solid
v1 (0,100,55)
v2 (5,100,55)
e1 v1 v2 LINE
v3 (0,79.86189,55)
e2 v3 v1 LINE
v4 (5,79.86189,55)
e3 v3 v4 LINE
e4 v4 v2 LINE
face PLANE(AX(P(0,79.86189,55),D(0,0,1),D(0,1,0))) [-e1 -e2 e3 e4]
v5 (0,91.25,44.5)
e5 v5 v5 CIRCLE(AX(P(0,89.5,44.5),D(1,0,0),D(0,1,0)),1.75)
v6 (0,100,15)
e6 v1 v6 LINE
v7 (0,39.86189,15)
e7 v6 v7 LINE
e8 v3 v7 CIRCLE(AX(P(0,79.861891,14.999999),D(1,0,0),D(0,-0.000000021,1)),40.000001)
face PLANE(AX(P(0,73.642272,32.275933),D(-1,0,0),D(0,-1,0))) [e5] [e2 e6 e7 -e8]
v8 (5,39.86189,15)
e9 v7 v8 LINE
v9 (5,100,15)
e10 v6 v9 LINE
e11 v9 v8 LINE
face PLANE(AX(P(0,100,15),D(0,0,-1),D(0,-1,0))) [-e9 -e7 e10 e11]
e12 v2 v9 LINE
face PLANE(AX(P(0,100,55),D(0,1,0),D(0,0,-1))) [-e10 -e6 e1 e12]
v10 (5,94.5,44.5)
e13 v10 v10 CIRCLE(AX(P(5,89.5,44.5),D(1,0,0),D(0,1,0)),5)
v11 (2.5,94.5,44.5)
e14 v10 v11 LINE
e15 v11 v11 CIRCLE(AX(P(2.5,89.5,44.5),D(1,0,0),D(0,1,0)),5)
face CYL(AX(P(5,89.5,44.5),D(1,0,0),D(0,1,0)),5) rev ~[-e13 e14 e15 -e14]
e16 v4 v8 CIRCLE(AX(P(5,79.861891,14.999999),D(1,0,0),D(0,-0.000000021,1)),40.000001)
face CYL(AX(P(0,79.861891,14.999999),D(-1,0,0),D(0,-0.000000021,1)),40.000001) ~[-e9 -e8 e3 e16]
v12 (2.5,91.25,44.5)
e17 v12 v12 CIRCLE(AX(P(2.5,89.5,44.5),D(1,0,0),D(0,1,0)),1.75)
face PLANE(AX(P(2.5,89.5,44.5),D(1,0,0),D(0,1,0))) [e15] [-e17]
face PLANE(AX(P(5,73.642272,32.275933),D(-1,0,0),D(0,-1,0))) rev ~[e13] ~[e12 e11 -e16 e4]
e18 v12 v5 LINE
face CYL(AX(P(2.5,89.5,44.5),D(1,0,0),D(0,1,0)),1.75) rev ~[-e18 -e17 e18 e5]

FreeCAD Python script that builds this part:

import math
import FreeCAD as App
import Part
import Sketcher
from FreeCAD import Vector
Q = App.Units.Quantity

doc = App.newDocument("Part")
body = doc.addObject("PartDesign::Body", "Body")

sketch1 = body.newObject("Sketcher::SketchObject", "Sketch")
sketch1.AttachmentSupport = (doc.getObject("YZ_Plane"), [""])
sketch1.MapMode = "FlatFace"
sketch1.addGeometry([
    Part.LineSegment(Vector(40, 15, 0), Vector(100, 15, 0)),
    Part.LineSegment(Vector(100, 15, 0), Vector(100, 55, 0)),
    Part.LineSegment(Vector(100, 55, 0), Vector(80, 55, 0)),
    Part.ArcOfCircle(Part.Circle(Vector(80, 15, 0), Vector(0, 0, 1), 40), math.radians(90), math.radians(180)),
], False)
sketch1.addConstraint([
    Sketcher.Constraint("Coincident", 0, 2, 1, 1),
    Sketcher.Constraint("Coincident", 1, 2, 2, 1),
    Sketcher.Constraint("Tangent", 2, 2, 3, 1),
    Sketcher.Constraint("Coincident", 3, 2, 0, 1),
    Sketcher.Constraint("Horizontal", 0),
    Sketcher.Constraint("Vertical", 1),
    Sketcher.Constraint("Horizontal", 2),
    Sketcher.Constraint("Horizontal", 3, 3, 0, 2),
    Sketcher.Constraint("Radius", 3, Q("40.000001 mm")),
    Sketcher.Constraint("DistanceY", -1, 1, 3, 3, Q("14.999999 mm")),
    Sketcher.Constraint("DistanceX", -1, 1, 0, 2, Q("100 mm")),
    Sketcher.Constraint("DistanceX", 0, 1, 0, 2, Q("60.13811 mm")),
])
pad1 = body.newObject("PartDesign::Pad", "Pad")
pad1.Profile = sketch1
pad1.Length = 5

sketch2 = body.newObject("Sketcher::SketchObject", "Sketch001")
sketch2.AttachmentSupport = (doc.getObject("YZ_Plane"), [""])
sketch2.MapMode = "FlatFace"
sketch2.AttachmentOffset = App.Placement(Vector(0, 0, 5), App.Rotation())
sketch2.addGeometry(Part.Circle(Vector(90, 44, 0), Vector(0, 0, 1), 5), False)
sketch2.addConstraint([
    Sketcher.Constraint("Diameter", 0, Q("10 mm")),
    Sketcher.Constraint("DistanceX", -1, 1, 0, 3, Q("89.5 mm")),
    Sketcher.Constraint("DistanceY", -1, 1, 0, 3, Q("44.5 mm")),
])
pocket1 = body.newObject("PartDesign::Pocket", "Pocket")
pocket1.Profile = sketch2
pocket1.Length = 2.5

sketch3 = body.newObject("Sketcher::SketchObject", "Sketch002")
sketch3.AttachmentSupport = (doc.getObject("YZ_Plane"), [""])
sketch3.MapMode = "FlatFace"
sketch3.AttachmentOffset = App.Placement(Vector(0, 0, 2.5), App.Rotation())
sketch3.addGeometry(Part.Circle(Vector(89.5, 44.5, 0), Vector(0, 0, 1), 1.8), False)
sketch3.addConstraint([
    Sketcher.Constraint("Diameter", 0, Q("3.5 mm")),
    Sketcher.Constraint("DistanceX", -1, 1, 0, 3, Q("89.5 mm")),
    Sketcher.Constraint("DistanceY", -1, 1, 0, 3, Q("44.5 mm")),
])
pocket2 = body.newObject("PartDesign::Pocket", "Pocket001")
pocket2.Profile = sketch3
pocket2.Length = 5

doc.recompute()
